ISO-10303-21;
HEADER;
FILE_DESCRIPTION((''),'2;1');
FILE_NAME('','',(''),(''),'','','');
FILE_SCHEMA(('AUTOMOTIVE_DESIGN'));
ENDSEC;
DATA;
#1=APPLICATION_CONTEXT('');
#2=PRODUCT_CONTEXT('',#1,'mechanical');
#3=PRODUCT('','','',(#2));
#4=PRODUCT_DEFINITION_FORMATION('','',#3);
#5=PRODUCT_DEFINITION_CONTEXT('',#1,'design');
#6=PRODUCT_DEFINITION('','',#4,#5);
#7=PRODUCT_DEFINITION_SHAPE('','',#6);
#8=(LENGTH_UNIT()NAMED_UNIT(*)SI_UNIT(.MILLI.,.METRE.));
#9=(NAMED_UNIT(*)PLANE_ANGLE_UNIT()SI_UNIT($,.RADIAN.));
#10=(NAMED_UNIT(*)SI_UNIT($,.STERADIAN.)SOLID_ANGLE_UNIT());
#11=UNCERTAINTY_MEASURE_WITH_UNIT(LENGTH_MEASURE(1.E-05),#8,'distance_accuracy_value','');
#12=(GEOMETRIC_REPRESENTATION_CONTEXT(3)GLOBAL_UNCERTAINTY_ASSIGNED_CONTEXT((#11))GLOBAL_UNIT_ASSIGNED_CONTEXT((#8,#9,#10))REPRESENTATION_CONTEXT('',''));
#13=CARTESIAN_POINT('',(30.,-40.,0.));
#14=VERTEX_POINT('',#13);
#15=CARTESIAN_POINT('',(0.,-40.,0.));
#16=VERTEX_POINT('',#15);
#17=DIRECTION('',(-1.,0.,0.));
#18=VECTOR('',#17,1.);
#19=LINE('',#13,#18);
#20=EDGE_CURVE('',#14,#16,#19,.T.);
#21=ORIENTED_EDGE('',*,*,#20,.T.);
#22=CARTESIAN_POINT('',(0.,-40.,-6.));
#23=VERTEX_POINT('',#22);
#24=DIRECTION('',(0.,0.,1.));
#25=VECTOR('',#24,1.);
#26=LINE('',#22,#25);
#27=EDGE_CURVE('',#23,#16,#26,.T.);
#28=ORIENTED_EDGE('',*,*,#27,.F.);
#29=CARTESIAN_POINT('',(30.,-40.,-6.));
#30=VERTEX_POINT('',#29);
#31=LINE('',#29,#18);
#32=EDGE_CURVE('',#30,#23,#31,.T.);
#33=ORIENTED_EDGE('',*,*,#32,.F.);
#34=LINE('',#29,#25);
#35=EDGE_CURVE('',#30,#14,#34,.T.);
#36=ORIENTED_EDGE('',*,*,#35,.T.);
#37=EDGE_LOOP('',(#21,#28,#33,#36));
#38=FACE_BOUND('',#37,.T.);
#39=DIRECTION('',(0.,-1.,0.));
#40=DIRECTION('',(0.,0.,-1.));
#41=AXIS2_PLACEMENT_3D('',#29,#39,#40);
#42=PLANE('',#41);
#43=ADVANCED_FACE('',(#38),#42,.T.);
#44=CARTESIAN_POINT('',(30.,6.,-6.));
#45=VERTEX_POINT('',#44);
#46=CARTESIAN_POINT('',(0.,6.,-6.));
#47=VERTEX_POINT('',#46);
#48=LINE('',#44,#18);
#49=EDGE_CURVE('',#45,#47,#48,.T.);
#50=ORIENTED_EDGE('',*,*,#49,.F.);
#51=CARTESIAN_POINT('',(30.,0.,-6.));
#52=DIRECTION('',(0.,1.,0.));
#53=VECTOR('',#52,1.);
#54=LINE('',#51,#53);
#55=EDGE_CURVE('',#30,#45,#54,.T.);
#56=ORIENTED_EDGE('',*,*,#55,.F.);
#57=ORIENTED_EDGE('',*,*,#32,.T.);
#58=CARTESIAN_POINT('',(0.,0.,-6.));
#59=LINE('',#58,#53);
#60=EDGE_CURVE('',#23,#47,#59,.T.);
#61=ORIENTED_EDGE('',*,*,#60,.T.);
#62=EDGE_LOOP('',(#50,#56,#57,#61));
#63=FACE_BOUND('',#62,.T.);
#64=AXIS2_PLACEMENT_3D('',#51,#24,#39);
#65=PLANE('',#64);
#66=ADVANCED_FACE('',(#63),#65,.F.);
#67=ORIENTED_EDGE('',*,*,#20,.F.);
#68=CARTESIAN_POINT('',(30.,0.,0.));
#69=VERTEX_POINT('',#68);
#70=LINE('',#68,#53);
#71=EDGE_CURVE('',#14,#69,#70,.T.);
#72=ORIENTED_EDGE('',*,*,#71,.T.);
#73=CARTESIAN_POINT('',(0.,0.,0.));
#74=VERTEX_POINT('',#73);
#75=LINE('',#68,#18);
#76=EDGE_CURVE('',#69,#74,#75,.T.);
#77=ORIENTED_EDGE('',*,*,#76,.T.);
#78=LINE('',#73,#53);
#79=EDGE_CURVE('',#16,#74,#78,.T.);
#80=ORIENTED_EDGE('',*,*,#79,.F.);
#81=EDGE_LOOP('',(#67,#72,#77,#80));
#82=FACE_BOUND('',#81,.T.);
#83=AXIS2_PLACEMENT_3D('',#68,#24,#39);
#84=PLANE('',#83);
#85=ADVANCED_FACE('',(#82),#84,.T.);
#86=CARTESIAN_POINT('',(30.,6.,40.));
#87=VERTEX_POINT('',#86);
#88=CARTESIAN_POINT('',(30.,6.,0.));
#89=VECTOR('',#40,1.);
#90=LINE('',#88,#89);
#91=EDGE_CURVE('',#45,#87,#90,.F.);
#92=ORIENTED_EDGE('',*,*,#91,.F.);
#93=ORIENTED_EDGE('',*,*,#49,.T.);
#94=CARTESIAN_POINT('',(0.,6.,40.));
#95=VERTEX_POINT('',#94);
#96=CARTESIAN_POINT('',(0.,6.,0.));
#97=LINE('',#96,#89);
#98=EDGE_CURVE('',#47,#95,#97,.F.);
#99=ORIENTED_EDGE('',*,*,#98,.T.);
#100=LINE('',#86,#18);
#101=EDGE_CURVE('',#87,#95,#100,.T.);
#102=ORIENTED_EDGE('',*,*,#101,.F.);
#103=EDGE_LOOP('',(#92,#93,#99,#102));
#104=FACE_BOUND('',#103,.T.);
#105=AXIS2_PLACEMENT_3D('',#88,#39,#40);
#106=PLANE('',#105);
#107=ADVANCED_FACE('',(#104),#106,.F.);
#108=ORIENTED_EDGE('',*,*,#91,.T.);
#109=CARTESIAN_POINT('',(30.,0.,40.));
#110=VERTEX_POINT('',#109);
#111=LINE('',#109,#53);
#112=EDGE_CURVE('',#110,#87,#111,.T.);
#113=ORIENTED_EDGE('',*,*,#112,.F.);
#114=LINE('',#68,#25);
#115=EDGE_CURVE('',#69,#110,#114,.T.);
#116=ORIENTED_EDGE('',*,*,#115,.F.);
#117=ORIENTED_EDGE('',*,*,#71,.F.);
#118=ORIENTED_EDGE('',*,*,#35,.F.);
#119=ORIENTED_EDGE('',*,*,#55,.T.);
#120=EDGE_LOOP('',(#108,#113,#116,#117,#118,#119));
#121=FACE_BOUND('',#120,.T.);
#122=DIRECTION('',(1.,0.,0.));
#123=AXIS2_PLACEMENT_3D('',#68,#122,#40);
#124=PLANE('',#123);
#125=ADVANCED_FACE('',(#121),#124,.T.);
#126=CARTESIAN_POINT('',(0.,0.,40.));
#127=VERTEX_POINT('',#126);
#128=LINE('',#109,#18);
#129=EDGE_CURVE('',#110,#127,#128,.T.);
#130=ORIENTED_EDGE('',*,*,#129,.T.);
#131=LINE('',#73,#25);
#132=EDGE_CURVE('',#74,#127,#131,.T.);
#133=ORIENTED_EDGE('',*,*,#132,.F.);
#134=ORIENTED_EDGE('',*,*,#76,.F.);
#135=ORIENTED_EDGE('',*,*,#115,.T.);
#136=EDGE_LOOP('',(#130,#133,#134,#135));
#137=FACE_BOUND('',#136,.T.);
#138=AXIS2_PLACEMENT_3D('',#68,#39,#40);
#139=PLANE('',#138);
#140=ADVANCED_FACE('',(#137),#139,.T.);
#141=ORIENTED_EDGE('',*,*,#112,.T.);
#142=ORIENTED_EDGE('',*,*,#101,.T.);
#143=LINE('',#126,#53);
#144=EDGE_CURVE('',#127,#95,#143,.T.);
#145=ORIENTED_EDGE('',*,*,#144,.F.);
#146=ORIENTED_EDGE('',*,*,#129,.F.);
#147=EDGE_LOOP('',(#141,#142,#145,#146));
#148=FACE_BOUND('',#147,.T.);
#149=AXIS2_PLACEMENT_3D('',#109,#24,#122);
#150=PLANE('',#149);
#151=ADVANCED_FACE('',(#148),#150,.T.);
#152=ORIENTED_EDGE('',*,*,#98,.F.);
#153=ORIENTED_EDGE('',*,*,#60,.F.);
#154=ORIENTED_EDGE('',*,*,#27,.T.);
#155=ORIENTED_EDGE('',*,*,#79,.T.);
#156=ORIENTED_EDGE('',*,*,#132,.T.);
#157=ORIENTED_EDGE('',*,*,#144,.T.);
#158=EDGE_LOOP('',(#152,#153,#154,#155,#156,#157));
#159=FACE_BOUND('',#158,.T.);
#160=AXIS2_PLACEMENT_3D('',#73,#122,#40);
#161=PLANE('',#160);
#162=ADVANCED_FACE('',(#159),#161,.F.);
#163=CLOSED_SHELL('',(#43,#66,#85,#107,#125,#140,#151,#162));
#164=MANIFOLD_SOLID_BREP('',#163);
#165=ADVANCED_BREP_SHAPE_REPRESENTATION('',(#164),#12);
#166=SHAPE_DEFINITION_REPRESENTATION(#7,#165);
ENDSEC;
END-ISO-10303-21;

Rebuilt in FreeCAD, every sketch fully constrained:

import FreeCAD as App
import Part
import Sketcher
from FreeCAD import Vector
Q = App.Units.Quantity

doc = App.newDocument("Part")
body = doc.addObject("PartDesign::Body", "Body")

# Sketch on YZ plane
sketch1 = body.newObject("Sketcher::SketchObject", "Sketch")
sketch1.AttachmentSupport = (doc.getObject("YZ_Plane"), [""])
sketch1.MapMode = "FlatFace"
sketch1.addGeometry(Part.LineSegment(Vector(0, 40, 0), Vector(0, 0, 0)), False)
sketch1.addGeometry(Part.LineSegment(Vector(0, 0, 0), Vector(-40, 0, 0)), False)
sketch1.addGeometry(Part.LineSegment(Vector(-40, 0, 0), Vector(-40, -6, 0)), False)
sketch1.addGeometry(Part.LineSegment(Vector(-40, -6, 0), Vector(6, -6, 0)), False)
sketch1.addGeometry(Part.LineSegment(Vector(6, -6, 0), Vector(6, 40, 0)), False)
sketch1.addGeometry(Part.LineSegment(Vector(6, 40, 0), Vector(0, 40, 0)), False)
sketch1.addConstraint(Sketcher.Constraint("Coincident", 0, 2, 1, 1))
sketch1.addConstraint(Sketcher.Constraint("Coincident", 1, 2, 2, 1))
sketch1.addConstraint(Sketcher.Constraint("Coincident", 2, 2, 3, 1))
sketch1.addConstraint(Sketcher.Constraint("Coincident", 3, 2, 4, 1))
sketch1.addConstraint(Sketcher.Constraint("Coincident", 4, 2, 5, 1))
sketch1.addConstraint(Sketcher.Constraint("Coincident", 5, 2, 0, 1))
sketch1.addConstraint(Sketcher.Constraint("Vertical", 0))
sketch1.addConstraint(Sketcher.Constraint("Horizontal", 1))
sketch1.addConstraint(Sketcher.Constraint("Vertical", 2))
sketch1.addConstraint(Sketcher.Constraint("Horizontal", 3))
sketch1.addConstraint(Sketcher.Constraint("Vertical", 4))
sketch1.addConstraint(Sketcher.Constraint("Horizontal", 5))
sketch1.addConstraint(Sketcher.Constraint("Coincident", 0, 2, -1, 1))
sketch1.addConstraint(Sketcher.Constraint("Equal", 1, 0))
sketch1.addConstraint(Sketcher.Constraint("Equal", 5, 2))
sketch1.addConstraint(Sketcher.Constraint("DistanceX", 1, 2, 1, 1, Q("40 mm")))
sketch1.addConstraint(Sketcher.Constraint("DistanceX", 3, 1, 3, 2, Q("46 mm")))
pad1 = body.newObject("PartDesign::Pad", "Pad")
pad1.Profile = sketch1
pad1.Length = 30

doc.recompute()
